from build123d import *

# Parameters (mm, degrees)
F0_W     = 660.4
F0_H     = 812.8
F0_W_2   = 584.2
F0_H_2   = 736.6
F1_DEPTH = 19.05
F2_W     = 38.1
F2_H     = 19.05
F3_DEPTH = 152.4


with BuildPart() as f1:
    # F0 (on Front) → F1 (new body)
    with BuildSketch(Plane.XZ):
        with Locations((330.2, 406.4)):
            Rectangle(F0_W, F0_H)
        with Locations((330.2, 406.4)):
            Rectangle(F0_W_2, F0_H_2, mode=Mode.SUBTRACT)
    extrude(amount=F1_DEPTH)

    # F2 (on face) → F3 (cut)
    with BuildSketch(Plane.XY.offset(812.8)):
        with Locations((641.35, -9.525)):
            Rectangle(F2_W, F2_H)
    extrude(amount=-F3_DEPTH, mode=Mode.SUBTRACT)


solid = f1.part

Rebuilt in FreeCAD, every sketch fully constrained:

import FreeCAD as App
import Part
import Sketcher
from FreeCAD import Vector
Q = App.Units.Quantity


def add_polygon(sketch, points):
    """Adds a closed chain of lines whose ends are joined by coincident constraints."""
    first, n = sketch.GeometryCount, len(points)
    for a, b in zip(points, points[1:] + points[:1]):
        sketch.addGeometry(Part.LineSegment(App.Vector(*a, 0), App.Vector(*b, 0)), False)
    for i in range(n):
        sketch.addConstraint(Sketcher.Constraint("Coincident", first + i, 2, first + (i + 1) % n, 1))

doc = App.newDocument("Part")
params = doc.addObject("Spreadsheet::Sheet", "Params")
for row, (alias, value) in enumerate([
    ("sketch1_width", "26 in"),
    ("sketch1_width2", "23 in"),
    ("sketch1_height", "32 in"),
    ("sketch1_height2", "29 in"),
    ("pad1_length", "0.75 in"),
    ("sketch2_width", "1.5 in"),
    ("sketch2_height", "0.75 in"),
    ("pocket1_length", "6 in"),
], start=1):
    params.set(f"A{row}", alias)
    params.set(f"B{row}", "=" + value)
    params.setAlias(f"B{row}", alias)

body = doc.addObject("PartDesign::Body", "Body")

sketch1 = body.newObject("Sketcher::SketchObject", "Sketch")
sketch1.AttachmentSupport = (doc.getObject("XZ_Plane"), [""])
sketch1.MapMode = "FlatFace"
add_polygon(sketch1, [(0, 813), (0, 0), (660, 0), (660, 813)])
add_polygon(sketch1, [(622, 38), (38, 38), (38, 775), (622, 775)])
sketch1.addConstraint(Sketcher.Constraint("Vertical", 0))
sketch1.addConstraint(Sketcher.Constraint("Horizontal", 1))
sketch1.addConstraint(Sketcher.Constraint("Vertical", 2))
sketch1.addConstraint(Sketcher.Constraint("Horizontal", 3))
sketch1.addConstraint(Sketcher.Constraint("Horizontal", 4))
sketch1.addConstraint(Sketcher.Constraint("Vertical", 5))
sketch1.addConstraint(Sketcher.Constraint("Horizontal", 6))
sketch1.addConstraint(Sketcher.Constraint("Vertical", 7))
sketch1.addConstraint(Sketcher.Constraint("Coincident", 0, 2, -1, 1))
sketch1.addConstraint(Sketcher.Constraint("DistanceX", 1, 1, 1, 2, Q("26 in")))
sketch1.addConstraint(Sketcher.Constraint("DistanceX", 4, 2, 4, 1, Q("23 in")))
sketch1.addConstraint(Sketcher.Constraint("DistanceY", 0, 2, 0, 1, Q("32 in")))
sketch1.addConstraint(Sketcher.Constraint("DistanceY", 5, 1, 5, 2, Q("29 in")))
sketch1.addConstraint(Sketcher.Constraint("DistanceX", -1, 1, 4, 2, Q("1.5 in")))
sketch1.addConstraint(Sketcher.Constraint("DistanceY", -1, 1, 4, 2, Q("1.5 in")))
sketch1.setExpression("Constraints[17]", "Params.sketch1_width")
sketch1.setExpression("Constraints[18]", "Params.sketch1_width2")
sketch1.setExpression("Constraints[19]", "Params.sketch1_height")
sketch1.setExpression("Constraints[20]", "Params.sketch1_height2")
pad1 = body.newObject("PartDesign::Pad", "Pad")
pad1.Profile = sketch1
pad1.setExpression("Length", "Params.pad1_length")

sketch2 = body.newObject("Sketcher::SketchObject", "Sketch001")
sketch2.AttachmentSupport = (doc.getObject("XY_Plane"), [""])
sketch2.MapMode = "FlatFace"
sketch2.AttachmentOffset = App.Placement(Vector(0, 0, 32 * 25.4), App.Rotation())
add_polygon(sketch2, [(622, 0), (622, -19), (660, -19), (660, 0)])
sketch2.addConstraint(Sketcher.Constraint("Vertical", 0))
sketch2.addConstraint(Sketcher.Constraint("Horizontal", 1))
sketch2.addConstraint(Sketcher.Constraint("Vertical", 2))
sketch2.addConstraint(Sketcher.Constraint("Horizontal", 3))
sketch2.addConstraint(Sketcher.Constraint("PointOnObject", 2, 2, -1))
sketch2.addConstraint(Sketcher.Constraint("DistanceX", 1, 1, 1, 2, Q("1.5 in")))
sketch2.addConstraint(Sketcher.Constraint("DistanceX", -1, 1, 1, 2, Q("26 in")))
sketch2.addConstraint(Sketcher.Constraint("DistanceY", 0, 2, 0, 1, Q("0.75 in")))
sketch2.setExpression("Constraints[9]", "Params.sketch2_width")
sketch2.setExpression("Constraints[11]", "Params.sketch2_height")
pocket1 = body.newObject("PartDesign::Pocket", "Pocket")
pocket1.Profile = sketch2
pocket1.setExpression("Length", "Params.pocket1_length")

doc.recompute()
